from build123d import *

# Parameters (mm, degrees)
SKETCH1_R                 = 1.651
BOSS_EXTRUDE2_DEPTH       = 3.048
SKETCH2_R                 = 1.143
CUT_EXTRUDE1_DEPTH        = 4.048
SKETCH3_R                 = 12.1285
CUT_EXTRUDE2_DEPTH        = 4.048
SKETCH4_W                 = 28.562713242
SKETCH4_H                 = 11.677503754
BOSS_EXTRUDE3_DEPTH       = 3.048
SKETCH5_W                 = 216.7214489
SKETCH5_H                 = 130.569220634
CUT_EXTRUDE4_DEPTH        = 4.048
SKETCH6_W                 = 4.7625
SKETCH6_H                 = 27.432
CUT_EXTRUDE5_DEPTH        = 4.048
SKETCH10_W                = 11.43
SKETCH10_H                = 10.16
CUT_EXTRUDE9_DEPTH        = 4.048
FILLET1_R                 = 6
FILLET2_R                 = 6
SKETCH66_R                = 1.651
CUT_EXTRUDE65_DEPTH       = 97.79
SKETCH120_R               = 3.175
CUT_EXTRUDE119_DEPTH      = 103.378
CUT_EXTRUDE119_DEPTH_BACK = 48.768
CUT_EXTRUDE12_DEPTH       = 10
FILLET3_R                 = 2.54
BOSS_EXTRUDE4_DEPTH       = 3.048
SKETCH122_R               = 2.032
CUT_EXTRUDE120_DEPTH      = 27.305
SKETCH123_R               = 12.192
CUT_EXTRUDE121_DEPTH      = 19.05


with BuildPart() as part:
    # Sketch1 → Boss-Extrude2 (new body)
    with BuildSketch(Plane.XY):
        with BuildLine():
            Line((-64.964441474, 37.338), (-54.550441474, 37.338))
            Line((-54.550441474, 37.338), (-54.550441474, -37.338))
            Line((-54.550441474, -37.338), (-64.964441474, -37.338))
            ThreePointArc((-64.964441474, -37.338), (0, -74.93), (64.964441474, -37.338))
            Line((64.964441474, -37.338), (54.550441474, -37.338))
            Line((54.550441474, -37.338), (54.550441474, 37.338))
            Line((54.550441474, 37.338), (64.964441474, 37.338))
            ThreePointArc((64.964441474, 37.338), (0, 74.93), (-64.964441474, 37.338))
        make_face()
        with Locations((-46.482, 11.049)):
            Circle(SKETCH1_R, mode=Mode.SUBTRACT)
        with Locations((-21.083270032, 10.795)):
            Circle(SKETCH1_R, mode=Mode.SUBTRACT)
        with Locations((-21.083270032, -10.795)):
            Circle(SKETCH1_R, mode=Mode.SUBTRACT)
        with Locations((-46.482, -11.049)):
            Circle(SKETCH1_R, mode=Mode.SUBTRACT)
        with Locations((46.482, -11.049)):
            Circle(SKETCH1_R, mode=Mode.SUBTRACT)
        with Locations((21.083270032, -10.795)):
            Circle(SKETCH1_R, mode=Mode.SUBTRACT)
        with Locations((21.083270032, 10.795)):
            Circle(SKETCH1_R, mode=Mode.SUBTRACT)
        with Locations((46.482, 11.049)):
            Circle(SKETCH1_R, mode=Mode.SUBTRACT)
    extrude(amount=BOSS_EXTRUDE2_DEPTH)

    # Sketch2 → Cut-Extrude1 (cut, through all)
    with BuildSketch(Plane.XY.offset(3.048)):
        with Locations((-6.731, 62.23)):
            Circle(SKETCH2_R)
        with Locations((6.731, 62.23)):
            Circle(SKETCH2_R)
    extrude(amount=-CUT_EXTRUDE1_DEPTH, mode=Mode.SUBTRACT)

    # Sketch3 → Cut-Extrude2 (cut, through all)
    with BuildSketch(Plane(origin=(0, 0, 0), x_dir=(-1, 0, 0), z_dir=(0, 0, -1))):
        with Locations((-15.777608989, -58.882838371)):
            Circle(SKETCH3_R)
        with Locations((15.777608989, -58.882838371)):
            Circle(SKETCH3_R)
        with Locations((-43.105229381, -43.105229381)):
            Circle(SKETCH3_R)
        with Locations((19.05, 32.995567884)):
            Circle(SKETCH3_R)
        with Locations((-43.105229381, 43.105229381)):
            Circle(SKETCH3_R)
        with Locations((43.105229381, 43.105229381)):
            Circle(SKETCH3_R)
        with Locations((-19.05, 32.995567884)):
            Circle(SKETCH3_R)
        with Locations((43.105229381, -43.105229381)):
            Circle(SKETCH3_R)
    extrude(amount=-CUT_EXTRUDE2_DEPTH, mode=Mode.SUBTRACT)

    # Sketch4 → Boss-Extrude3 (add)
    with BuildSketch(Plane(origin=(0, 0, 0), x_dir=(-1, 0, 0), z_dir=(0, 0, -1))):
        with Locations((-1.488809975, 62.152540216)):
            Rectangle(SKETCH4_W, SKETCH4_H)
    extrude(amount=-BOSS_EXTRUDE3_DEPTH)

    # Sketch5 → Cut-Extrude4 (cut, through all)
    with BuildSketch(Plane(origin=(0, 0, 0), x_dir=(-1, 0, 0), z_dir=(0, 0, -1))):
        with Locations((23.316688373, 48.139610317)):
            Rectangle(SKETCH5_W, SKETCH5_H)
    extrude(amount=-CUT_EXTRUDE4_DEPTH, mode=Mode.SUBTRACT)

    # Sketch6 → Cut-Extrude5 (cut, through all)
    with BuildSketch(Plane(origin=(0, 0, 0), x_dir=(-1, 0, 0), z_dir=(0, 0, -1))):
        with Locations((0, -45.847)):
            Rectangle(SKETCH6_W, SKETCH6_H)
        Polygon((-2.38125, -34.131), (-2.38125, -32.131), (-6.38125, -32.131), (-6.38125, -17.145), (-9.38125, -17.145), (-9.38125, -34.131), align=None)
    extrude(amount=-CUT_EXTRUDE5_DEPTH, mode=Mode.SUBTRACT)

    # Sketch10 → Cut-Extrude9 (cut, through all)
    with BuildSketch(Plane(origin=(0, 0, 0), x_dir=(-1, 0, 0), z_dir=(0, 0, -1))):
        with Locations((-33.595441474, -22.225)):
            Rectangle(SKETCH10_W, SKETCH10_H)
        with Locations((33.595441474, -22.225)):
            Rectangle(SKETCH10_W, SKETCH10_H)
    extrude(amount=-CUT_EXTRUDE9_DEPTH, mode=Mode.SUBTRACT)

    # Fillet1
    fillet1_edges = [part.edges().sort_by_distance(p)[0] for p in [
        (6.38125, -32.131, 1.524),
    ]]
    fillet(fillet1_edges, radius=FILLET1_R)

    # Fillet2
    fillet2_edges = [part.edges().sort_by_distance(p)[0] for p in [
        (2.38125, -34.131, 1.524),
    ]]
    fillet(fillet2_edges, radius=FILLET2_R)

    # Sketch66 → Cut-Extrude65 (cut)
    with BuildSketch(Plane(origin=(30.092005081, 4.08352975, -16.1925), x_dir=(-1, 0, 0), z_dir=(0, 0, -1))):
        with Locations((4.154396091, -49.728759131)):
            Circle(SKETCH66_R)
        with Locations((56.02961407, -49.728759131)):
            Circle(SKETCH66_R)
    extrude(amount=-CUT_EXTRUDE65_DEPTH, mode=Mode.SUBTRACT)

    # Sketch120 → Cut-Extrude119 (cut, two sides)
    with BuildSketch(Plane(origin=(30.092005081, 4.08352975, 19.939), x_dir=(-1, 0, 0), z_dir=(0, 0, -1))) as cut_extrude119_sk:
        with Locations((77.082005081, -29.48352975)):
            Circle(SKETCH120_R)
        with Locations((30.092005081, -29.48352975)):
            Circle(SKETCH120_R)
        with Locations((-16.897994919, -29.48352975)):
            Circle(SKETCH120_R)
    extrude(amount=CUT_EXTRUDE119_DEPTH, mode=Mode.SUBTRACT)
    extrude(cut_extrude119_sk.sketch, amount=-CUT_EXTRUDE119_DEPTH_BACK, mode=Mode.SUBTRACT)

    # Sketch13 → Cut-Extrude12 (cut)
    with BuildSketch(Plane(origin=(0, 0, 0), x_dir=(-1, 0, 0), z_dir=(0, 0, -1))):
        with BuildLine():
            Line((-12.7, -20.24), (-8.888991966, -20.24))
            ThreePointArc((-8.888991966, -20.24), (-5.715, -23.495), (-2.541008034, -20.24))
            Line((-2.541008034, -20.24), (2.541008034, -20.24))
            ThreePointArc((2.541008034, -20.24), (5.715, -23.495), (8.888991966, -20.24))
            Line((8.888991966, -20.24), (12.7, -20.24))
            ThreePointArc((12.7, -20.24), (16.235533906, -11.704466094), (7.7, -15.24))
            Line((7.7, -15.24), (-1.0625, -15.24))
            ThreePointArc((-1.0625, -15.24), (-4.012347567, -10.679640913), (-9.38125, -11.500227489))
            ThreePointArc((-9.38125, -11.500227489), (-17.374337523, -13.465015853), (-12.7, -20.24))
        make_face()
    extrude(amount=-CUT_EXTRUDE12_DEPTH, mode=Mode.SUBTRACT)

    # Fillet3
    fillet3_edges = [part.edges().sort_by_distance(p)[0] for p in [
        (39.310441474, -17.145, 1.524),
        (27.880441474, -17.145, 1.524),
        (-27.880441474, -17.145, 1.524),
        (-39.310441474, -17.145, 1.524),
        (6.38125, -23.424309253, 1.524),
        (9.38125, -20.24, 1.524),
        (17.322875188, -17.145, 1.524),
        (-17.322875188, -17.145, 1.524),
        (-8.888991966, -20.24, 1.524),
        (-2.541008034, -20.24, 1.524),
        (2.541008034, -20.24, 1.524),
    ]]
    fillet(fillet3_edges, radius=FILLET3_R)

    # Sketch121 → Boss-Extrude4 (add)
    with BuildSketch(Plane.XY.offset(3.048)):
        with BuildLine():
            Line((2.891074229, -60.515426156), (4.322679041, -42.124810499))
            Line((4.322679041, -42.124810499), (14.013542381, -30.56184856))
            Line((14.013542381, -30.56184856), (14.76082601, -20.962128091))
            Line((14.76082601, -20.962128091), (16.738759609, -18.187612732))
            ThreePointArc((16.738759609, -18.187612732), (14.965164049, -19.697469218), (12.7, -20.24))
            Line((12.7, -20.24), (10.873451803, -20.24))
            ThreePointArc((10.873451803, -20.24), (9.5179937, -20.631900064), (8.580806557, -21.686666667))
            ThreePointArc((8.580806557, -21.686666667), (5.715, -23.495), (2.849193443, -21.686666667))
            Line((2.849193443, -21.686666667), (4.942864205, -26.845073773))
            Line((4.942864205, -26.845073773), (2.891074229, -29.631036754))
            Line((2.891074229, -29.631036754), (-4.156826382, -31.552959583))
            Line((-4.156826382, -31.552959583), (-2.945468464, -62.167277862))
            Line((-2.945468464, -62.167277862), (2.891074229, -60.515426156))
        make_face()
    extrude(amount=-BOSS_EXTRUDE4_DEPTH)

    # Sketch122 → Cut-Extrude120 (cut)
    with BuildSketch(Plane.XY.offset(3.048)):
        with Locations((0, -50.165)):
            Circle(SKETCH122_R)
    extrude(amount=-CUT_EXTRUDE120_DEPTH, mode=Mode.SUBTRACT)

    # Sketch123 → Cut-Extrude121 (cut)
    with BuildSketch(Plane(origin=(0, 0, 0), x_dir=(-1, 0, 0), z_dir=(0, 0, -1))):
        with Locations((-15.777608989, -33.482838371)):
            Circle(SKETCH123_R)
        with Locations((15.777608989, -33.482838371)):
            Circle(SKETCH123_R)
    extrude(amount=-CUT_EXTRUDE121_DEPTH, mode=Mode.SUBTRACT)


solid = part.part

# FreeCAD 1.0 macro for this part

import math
import FreeCAD as App
import Part
import Sketcher
from FreeCAD import Vector
Q = App.Units.Quantity


def edges_at(feature, points):
    """Names of the edges that pass closest to the given points."""
    edges = feature.Shape.Edges
    near = lambda p: min(range(len(edges)), key=lambda i: edges[i].distToShape(Part.Vertex(*p))[0])
    return sorted({f"Edge{near(p) + 1}" for p in points})


def add_polygon(sketch, points):
    """Adds a closed chain of lines whose ends are joined by coincident constraints."""
    first, n = sketch.GeometryCount, len(points)
    for a, b in zip(points, points[1:] + points[:1]):
        sketch.addGeometry(Part.LineSegment(App.Vector(*a, 0), App.Vector(*b, 0)), False)
    for i in range(n):
        sketch.addConstraint(Sketcher.Constraint("Coincident", first + i, 2, first + (i + 1) % n, 1))

doc = App.newDocument("Part")
body = doc.addObject("PartDesign::Body", "Body")

# Sketch on XY plane
sketch1 = body.newObject("Sketcher::SketchObject", "Sketch")
sketch1.AttachmentSupport = (doc.getObject("XY_Plane"), [""])
sketch1.MapMode = "FlatFace"
sketch1.addGeometry([
    Part.LineSegment(Vector(-64.964441, 37.338, 0), Vector(-54.550441, 37.338, 0)),  # 0
    Part.LineSegment(Vector(-54.550441, 37.338, 0), Vector(-54.550441, -37.338, 0)),  # 1
    Part.LineSegment(Vector(-54.550441, -37.338, 0), Vector(-64.964441, -37.338, 0)),  # 2
    Part.ArcOfCircle(Part.Circle(Vector(0, 0, 0), Vector(0, 0, 1), 74.93), math.radians(-150.112071), math.radians(-29.887929)),  # 3
    Part.LineSegment(Vector(64.964441, -37.338, 0), Vector(54.550441, -37.338, 0)),  # 4
    Part.LineSegment(Vector(54.550441, -37.338, 0), Vector(54.550441, 37.338, 0)),  # 5
    Part.LineSegment(Vector(54.550441, 37.338, 0), Vector(64.964441, 37.338, 0)),  # 6
    Part.ArcOfCircle(Part.Circle(Vector(0, 0, 0), Vector(0, 0, 1), 74.93), math.radians(29.887929), math.radians(150.112071)),  # 7
    Part.Circle(Vector(-46.482, -11.049, 0), Vector(0, 0, 1), 1.651),  # 8
    Part.Circle(Vector(-21.08327, -10.795, 0), Vector(0, 0, 1), 1.651),  # 9
    Part.Circle(Vector(21.08327, -10.795, 0), Vector(0, 0, 1), 1.651),  # 10
    Part.Circle(Vector(46.482, -11.049, 0), Vector(0, 0, 1), 1.651),  # 11
    Part.Circle(Vector(-46.482, 11.049, 0), Vector(0, 0, 1), 1.651),  # 12
    Part.Circle(Vector(-21.08327, 10.795, 0), Vector(0, 0, 1), 1.651),  # 13
    Part.Circle(Vector(21.08327, 10.795, 0), Vector(0, 0, 1), 1.651),  # 14
    Part.Circle(Vector(46.482, 11.049, 0), Vector(0, 0, 1), 1.651),  # 15
], False)
sketch1.addConstraint([
    Sketcher.Constraint("Coincident", 0, 2, 1, 1),
    Sketcher.Constraint("Coincident", 1, 2, 2, 1),
    Sketcher.Constraint("Coincident", 2, 2, 3, 1),
    Sketcher.Constraint("Coincident", 3, 2, 4, 1),
    Sketcher.Constraint("Coincident", 4, 2, 5, 1),
    Sketcher.Constraint("Coincident", 5, 2, 6, 1),
    Sketcher.Constraint("Coincident", 6, 2, 7, 1),
    Sketcher.Constraint("Coincident", 7, 2, 0, 1),
    Sketcher.Constraint("Horizontal", 0),
    Sketcher.Constraint("Vertical", 1),
    Sketcher.Constraint("Horizontal", 2),
    Sketcher.Constraint("Horizontal", 4),
    Sketcher.Constraint("Vertical", 5),
    Sketcher.Constraint("Horizontal", 6),
    Sketcher.Constraint("Coincident", 3, 3, -1, 1),
    Sketcher.Constraint("Coincident", 7, 3, -1, 1),
    Sketcher.Constraint("Equal", 3, 7),
    Sketcher.Constraint("Equal", 8, 9),
    Sketcher.Constraint("Equal", 9, 10),
    Sketcher.Constraint("Equal", 10, 11),
    Sketcher.Constraint("Equal", 11, 12),
    Sketcher.Constraint("Equal", 12, 13),
    Sketcher.Constraint("Equal", 13, 14),
    Sketcher.Constraint("Equal", 14, 15),
    Sketcher.Constraint("Symmetric", 11, 3, 12, 3, -1, 1),
    Sketcher.Constraint("Symmetric", 10, 3, 13, 3, -1, 1),
    Sketcher.Constraint("Symmetric", 9, 3, 14, 3, -1, 1),
    Sketcher.Constraint("Symmetric", 8, 3, 15, 3, -1, 1),
    Sketcher.Constraint("Symmetric", 0, 2, 4, 2, -1, 1),
    Sketcher.Constraint("Symmetric", 9, 3, 10, 3, -2),
    Sketcher.Constraint("Symmetric", 8, 3, 11, 3, -2),
    Sketcher.Constraint("Horizontal", 2, 2, 3, 2),
    Sketcher.Constraint("Horizontal", 0, 2, 5, 2),
    Sketcher.Constraint("Diameter", 8, Q("0.13 in")),
    Sketcher.Constraint("Radius", 3, Q("2.95 in")),
    Sketcher.Constraint("DistanceX", 0, 1, 0, 2, Q("0.41 in")),
    Sketcher.Constraint("DistanceY", 1, 2, 1, 1, Q("2.94 in")),
    Sketcher.Constraint("DistanceX", 8, 3, -1, 1, Q("1.83 in")),
    Sketcher.Constraint("DistanceY", 8, 3, 9, 3, Q("0.01 in")),
    Sketcher.Constraint("DistanceY", 8, 3, 12, 3, Q("0.87 in")),
    Sketcher.Constraint("DistanceX", 9, 3, 10, 3, Q("1.6601 in")),
])
pad1 = body.newObject("PartDesign::Pad", "Pad")
pad1.Profile = sketch1
pad1.Length = Q("0.12 in")

# Sketch on XY plane
sketch2 = body.newObject("Sketcher::SketchObject", "Sketch001")
sketch2.AttachmentSupport = (doc.getObject("XY_Plane"), [""])
sketch2.MapMode = "FlatFace"
sketch2.AttachmentOffset = App.Placement(Vector(0, 0, 0.12 * 25.4), App.Rotation())
sketch2.addGeometry([
    Part.Circle(Vector(-6.731, 62.23, 0), Vector(0, 0, 1), 1.143),
    Part.Circle(Vector(6.731, 62.23, 0), Vector(0, 0, 1), 1.143),
], False)
sketch2.addConstraint([
    Sketcher.Constraint("Equal", 0, 1),
    Sketcher.Constraint("Symmetric", 0, 3, 1, 3, -2),
    Sketcher.Constraint("Diameter", 0, Q("0.09 in")),
    Sketcher.Constraint("DistanceY", -1, 1, 0, 3, Q("2.45 in")),
    Sketcher.Constraint("DistanceX", 0, 3, 1, 3, Q("0.53 in")),
])
pocket1 = body.newObject("PartDesign::Pocket", "Pocket")
pocket1.Profile = sketch2
pocket1.Type = "ThroughAll"

# Sketch on XY plane
sketch3 = body.newObject("Sketcher::SketchObject", "Sketch002")
sketch3.AttachmentSupport = (doc.getObject("XY_Plane"), [""])
sketch3.MapMode = "FlatFace"
sketch3.addGeometry([
    Part.Circle(Vector(15.777609, -58.882838, 0), Vector(0, 0, 1), 12.1285),  # 0
    Part.Circle(Vector(-15.777609, -58.882838, 0), Vector(0, 0, 1), 12.1285),  # 1
    Part.Circle(Vector(43.105229, -43.105229, 0), Vector(0, 0, 1), 12.1285),  # 2
    Part.Circle(Vector(-19.05, 32.995568, 0), Vector(0, 0, 1), 12.1285),  # 3
    Part.Circle(Vector(43.105229, 43.105229, 0), Vector(0, 0, 1), 12.1285),  # 4
    Part.Circle(Vector(-43.105229, 43.105229, 0), Vector(0, 0, 1), 12.1285),  # 5
    Part.Circle(Vector(19.05, 32.995568, 0), Vector(0, 0, 1), 12.1285),  # 6
    Part.Circle(Vector(-43.105229, -43.105229, 0), Vector(0, 0, 1), 12.1285),  # 7
], False)
sketch3.addConstraint([
    Sketcher.Constraint("Equal", 0, 1),
    Sketcher.Constraint("Equal", 1, 2),
    Sketcher.Constraint("Equal", 2, 3),
    Sketcher.Constraint("Equal", 3, 4),
    Sketcher.Constraint("Equal", 4, 5),
    Sketcher.Constraint("Equal", 5, 6),
    Sketcher.Constraint("Equal", 6, 7),
    Sketcher.Constraint("Symmetric", 2, 3, 5, 3, -1, 1),
    Sketcher.Constraint("Symmetric", 4, 3, 7, 3, -1, 1),
    Sketcher.Constraint("Symmetric", 0, 3, 1, 3, -2),
    Sketcher.Constraint("Symmetric", 4, 3, 5, 3, -2),
    Sketcher.Constraint("Symmetric", 3, 3, 6, 3, -2),
    Sketcher.Constraint("Diameter", 0, Q("0.955 in")),
    Sketcher.Constraint("DistanceX", 3, 3, 6, 3, Q("1.5 in")),
    Sketcher.Constraint("DistanceX", -1, 1, 0, 3, 15.777609),
    Sketcher.Constraint("DistanceY", 0, 3, -1, 1, 58.882838),
    Sketcher.Constraint("DistanceX", -1, 1, 2, 3, 43.105229),
    Sketcher.Constraint("DistanceY", 2, 3, -1, 1, 43.105229),
    Sketcher.Constraint("DistanceY", 3, 3, 4, 3, 10.109661),
])
pocket2 = body.newObject("PartDesign::Pocket", "Pocket001")
pocket2.Profile = sketch3
pocket2.Type = "ThroughAll"
pocket2.Reversed = True

# Sketch on XY plane
sketch4 = body.newObject("Sketcher::SketchObject", "Sketch003")
sketch4.AttachmentSupport = (doc.getObject("XY_Plane"), [""])
sketch4.MapMode = "FlatFace"
add_polygon(sketch4, [(15.770167, 67.991292), (15.770167, 56.313788), (-12.792547, 56.313788), (-12.792547, 67.991292)])  # lines 0-3
sketch4.addConstraint([
    Sketcher.Constraint("Vertical", 0),
    Sketcher.Constraint("Horizontal", 1),
    Sketcher.Constraint("Vertical", 2),
    Sketcher.Constraint("Horizontal", 3),
    Sketcher.Constraint("DistanceX", 1, 2, 1, 1, 28.562713),
    Sketcher.Constraint("DistanceY", 0, 2, 0, 1, 11.677504),
    Sketcher.Constraint("DistanceY", -1, 1, 0, 2, 56.313788),
    Sketcher.Constraint("DistanceX", -1, 1, 0, 2, 15.770167),
])
pad2 = body.newObject("PartDesign::Pad", "Pad001")
pad2.Profile = sketch4
pad2.Length = Q("0.12 in")

# Sketch on XY plane
sketch5 = body.newObject("Sketcher::SketchObject", "Sketch004")
sketch5.AttachmentSupport = (doc.getObject("XY_Plane"), [""])
sketch5.MapMode = "FlatFace"
add_polygon(sketch5, [(85.044036, 113.424221), (85.044036, -17.145), (-131.677413, -17.145), (-131.677413, 113.424221)])  # lines 0-3
sketch5.addConstraint([
    Sketcher.Constraint("Vertical", 0),
    Sketcher.Constraint("Horizontal", 1),
    Sketcher.Constraint("Vertical", 2),
    Sketcher.Constraint("Horizontal", 3),
    Sketcher.Constraint("DistanceY", 0, 2, -1, 1, Q("0.675 in")),
    Sketcher.Constraint("DistanceX", 1, 2, 1, 1, 216.721449),
    Sketcher.Constraint("DistanceY", 0, 2, 0, 1, 130.569221),
    Sketcher.Constraint("DistanceX", -1, 1, 0, 2, 85.044036),
])
pocket3 = body.newObject("PartDesign::Pocket", "Pocket002")
pocket3.Profile = sketch5
pocket3.Type = "ThroughAll"
pocket3.Reversed = True

# Sketch on XY plane
sketch6 = body.newObject("Sketcher::SketchObject", "Sketch005")
sketch6.AttachmentSupport = (doc.getObject("XY_Plane"), [""])
sketch6.MapMode = "FlatFace"
add_polygon(sketch6, [(2.38125, -34.131), (2.38125, -59.563), (-2.38125, -59.563), (-2.38125, -32.131), (6.38125, -32.131), (6.38125, -17.145), (9.38125, -17.145), (9.38125, -34.131)])  # lines 0-7
sketch6.addConstraint([
    Sketcher.Constraint("Vertical", 0),
    Sketcher.Constraint("Horizontal", 1),
    Sketcher.Constraint("Vertical", 2),
    Sketcher.Constraint("Horizontal", 3),
    Sketcher.Constraint("Vertical", 4),
    Sketcher.Constraint("Horizontal", 5),
    Sketcher.Constraint("Vertical", 6),
    Sketcher.Constraint("Horizontal", 7),
    Sketcher.Constraint("DistanceY", 2, 1, 2, 2, Q("1.08 in")),
    Sketcher.Constraint("DistanceY", 4, 1, 4, 2, Q("0.59 in")),
    Sketcher.Constraint("DistanceX", 1, 2, 1, 1, Q("0.1875 in")),
    Sketcher.Constraint("DistanceX", -1, 1, 0, 2, Q("0.09375 in")),
    Sketcher.Constraint("DistanceY", 0, 2, -1, 1, Q("2.345 in")),
    Sketcher.Constraint("DistanceX", 3, 1, 3, 2, 8.7625),
    Sketcher.Constraint("DistanceX", 5, 1, 5, 2, 3.0),
    Sketcher.Constraint("DistanceY", 0, 2, 0, 1, 25.432),
])
pocket4 = body.newObject("PartDesign::Pocket", "Pocket003")
pocket4.Profile = sketch6
pocket4.Type = "ThroughAll"
pocket4.Reversed = True

# Sketch on XY plane
sketch7 = body.newObject("Sketcher::SketchObject", "Sketch006")
sketch7.AttachmentSupport = (doc.getObject("XY_Plane"), [""])
sketch7.MapMode = "FlatFace"
add_polygon(sketch7, [(39.310441, -17.145), (39.310441, -27.305), (27.880441, -27.305), (27.880441, -17.145)])  # lines 0-3
add_polygon(sketch7, [(-27.880441, -17.145), (-27.880441, -27.305), (-39.310441, -27.305), (-39.310441, -17.145)])  # lines 4-7
sketch7.addConstraint([
    Sketcher.Constraint("Vertical", 0),
    Sketcher.Constraint("Horizontal", 1),
    Sketcher.Constraint("Vertical", 2),
    Sketcher.Constraint("Horizontal", 3),
    Sketcher.Constraint("Vertical", 4),
    Sketcher.Constraint("Horizontal", 5),
    Sketcher.Constraint("Vertical", 6),
    Sketcher.Constraint("Horizontal", 7),
    Sketcher.Constraint("Symmetric", 1, 2, 4, 2, -2),
    Sketcher.Constraint("Symmetric", 3, 2, 6, 2, -2),
    Sketcher.Constraint("DistanceY", 0, 2, 0, 1, Q("0.4 in")),
    Sketcher.Constraint("DistanceX", 1, 2, 1, 1, Q("0.45 in")),
    Sketcher.Constraint("DistanceY", 0, 2, -1, 1, Q("1.075 in")),
    Sketcher.Constraint("DistanceX", -1, 1, 0, 2, 39.310441),
])
pocket5 = body.newObject("PartDesign::Pocket", "Pocket004")
pocket5.Profile = sketch7
pocket5.Type = "ThroughAll"
pocket5.Reversed = True
doc.recompute()

fillet = body.newObject("PartDesign::Fillet", "Fillet")
fillet.Base = (pocket5, edges_at(pocket5, [(6.381, -32.131, 1.524)]))
fillet.Radius = 6
doc.recompute()

fillet2 = body.newObject("PartDesign::Fillet", "Fillet001")
fillet2.Base = (fillet, edges_at(fillet, [(2.381, -34.131, 1.524)]))
fillet2.Radius = 6

# Sketch on XY plane
sketch8 = body.newObject("Sketcher::SketchObject", "Sketch007")
sketch8.AttachmentSupport = (doc.getObject("XY_Plane"), [""])
sketch8.MapMode = "FlatFace"
sketch8.AttachmentOffset = App.Placement(Vector(0, 0, -0.6375 * 25.4), App.Rotation())
sketch8.addGeometry([
    Part.Circle(Vector(25.937609, -45.645229, 0), Vector(0, 0, 1), 1.651),
    Part.Circle(Vector(-25.937609, -45.645229, 0), Vector(0, 0, 1), 1.651),
], False)
sketch8.addConstraint([
    Sketcher.Constraint("Equal", 0, 1),
    Sketcher.Constraint("Symmetric", 0, 3, 1, 3, -2),
    Sketcher.Constraint("Diameter", 0, Q("0.13 in")),
    Sketcher.Constraint("DistanceX", -1, 1, 0, 3, 25.937609),
    Sketcher.Constraint("DistanceY", 0, 3, -1, 1, 45.645229),
])
pocket6 = body.newObject("PartDesign::Pocket", "Pocket005")
pocket6.Profile = sketch8
pocket6.Length = Q("3.85 in")
pocket6.Reversed = True

# Sketch on XY plane
sketch9 = body.newObject("Sketcher::SketchObject", "Sketch008")
sketch9.AttachmentSupport = (doc.getObject("XY_Plane"), [""])
sketch9.MapMode = "FlatFace"
sketch9.AttachmentOffset = App.Placement(Vector(0, 0, 0.785 * 25.4), App.Rotation())
sketch9.addGeometry([
    Part.Circle(Vector(-46.99, -25.4, 0), Vector(0, 0, 1), 3.175),
    Part.Circle(Vector(0, -25.4, 0), Vector(0, 0, 1), 3.175),
    Part.Circle(Vector(46.99, -25.4, 0), Vector(0, 0, 1), 3.175),
], False)
sketch9.addConstraint([
    Sketcher.Constraint("Equal", 0, 1),
    Sketcher.Constraint("Equal", 1, 2),
    Sketcher.Constraint("Symmetric", 0, 3, 2, 3, -2),
    Sketcher.Constraint("PointOnObject", 1, 3, -2),
    Sketcher.Constraint("Horizontal", 0, 3, 1, 3),
    Sketcher.Constraint("Diameter", 0, Q("0.25 in")),
    Sketcher.Constraint("DistanceY", 0, 3, -1, 1, Q("1 in")),
    Sketcher.Constraint("DistanceX", 0, 3, 2, 3, Q("3.7 in")),
])
pocket7 = body.newObject("PartDesign::Pocket", "Pocket006")
pocket7.Profile = sketch9
pocket7.Type = "ThroughAll"
pocket7.Midplane = True

# Sketch on XY plane
sketch10 = body.newObject("Sketcher::SketchObject", "Sketch009")
sketch10.AttachmentSupport = (doc.getObject("XY_Plane"), [""])
sketch10.MapMode = "FlatFace"
sketch10.addGeometry([
    Part.LineSegment(Vector(12.7, -20.24, 0), Vector(8.888992, -20.24, 0)),  # 0
    Part.ArcOfCircle(Part.Circle(Vector(5.715, -20.32, 0), Vector(0, 0, 1), 3.175), math.radians(178.556174), math.radians(361.443826)),  # 1
    Part.LineSegment(Vector(2.541008, -20.24, 0), Vector(-2.541008, -20.24, 0)),  # 2
    Part.ArcOfCircle(Part.Circle(Vector(-5.715, -20.32, 0), Vector(0, 0, 1), 3.175), math.radians(178.556174), math.radians(361.443826)),  # 3
    Part.LineSegment(Vector(-8.888992, -20.24, 0), Vector(-12.7, -20.24, 0)),  # 4
    Part.ArcOfCircle(Part.Circle(Vector(-12.7, -15.24, 0), Vector(0, 0, 1), 5), math.radians(0), math.radians(270)),  # 5
    Part.LineSegment(Vector(-7.7, -15.24, 0), Vector(1.0625, -15.24, 0)),  # 6
    Part.ArcOfCircle(Part.Circle(Vector(6.0625, -15.24, 0), Vector(0, 0, 1), 5), math.radians(48.4135), math.radians(180)),  # 7
    Part.ArcOfCircle(Part.Circle(Vector(12.7, -15.24, 0), Vector(0, 0, 1), 5), math.radians(-90), math.radians(131.5865)),  # 8
], False)
sketch10.addConstraint([
    Sketcher.Constraint("Coincident", 0, 2, 1, 2),
    Sketcher.Constraint("Coincident", 1, 1, 2, 1),
    Sketcher.Constraint("Coincident", 2, 2, 3, 2),
    Sketcher.Constraint("Coincident", 3, 1, 4, 1),
    Sketcher.Constraint("Tangent", 4, 2, 5, 2),
    Sketcher.Constraint("Coincident", 5, 1, 6, 1),
    Sketcher.Constraint("Coincident", 6, 2, 7, 2),
    Sketcher.Constraint("Coincident", 7, 1, 8, 2),
    Sketcher.Constraint("Tangent", 8, 1, 0, 1),
    Sketcher.Constraint("Horizontal", 0),
    Sketcher.Constraint("Horizontal", 2),
    Sketcher.Constraint("Horizontal", 4),
    Sketcher.Constraint("Horizontal", 6),
    Sketcher.Constraint("Equal", 1, 3),
    Sketcher.Constraint("Equal", 5, 7),
    Sketcher.Constraint("Equal", 7, 8),
    Sketcher.Constraint("Symmetric", 1, 3, 3, 3, -2),
    Sketcher.Constraint("Symmetric", 5, 3, 8, 3, -2),
    Sketcher.Constraint("Horizontal", 5, 3, 7, 3),
    Sketcher.Constraint("Horizontal", 0, 2, 1, 1),
    Sketcher.Constraint("Horizontal", 8, 3, 5, 1),
    Sketcher.Constraint("Radius", 1, Q("0.125 in")),
    Sketcher.Constraint("DistanceX", 5, 3, 8, 3, Q("1 in")),
    Sketcher.Constraint("DistanceY", 1, 3, -1, 1, Q("0.8 in")),
    Sketcher.Constraint("DistanceY", 5, 3, -1, 1, Q("0.6 in")),
    Sketcher.Constraint("Radius", 5, 5.0),
    Sketcher.Constraint("DistanceX", 3, 3, 1, 3, Q("0.45 in")),
    Sketcher.Constraint("DistanceX", 6, 1, 6, 2, 8.7625),
])
pocket8 = body.newObject("PartDesign::Pocket", "Pocket007")
pocket8.Profile = sketch10
pocket8.Length = 10
pocket8.Reversed = True
doc.recompute()

fillet3 = body.newObject("PartDesign::Fillet", "Fillet002")
fillet3.Base = (pocket8, edges_at(pocket8, [
    (39.31, -17.145, 1.524),
    (27.88, -17.145, 1.524),
    (-27.88, -17.145, 1.524),
    (-39.31, -17.145, 1.524),
    (6.381, -23.424, 1.524),
    (9.381, -20.24, 1.524),
    (17.323, -17.145, 1.524),
    (-17.323, -17.145, 1.524),
    (-8.889, -20.24, 1.524),
    (-2.541, -20.24, 1.524),
    (2.541, -20.24, 1.524),
]))
fillet3.Radius = Q("0.1 in")

# Sketch on XY plane
sketch11 = body.newObject("Sketcher::SketchObject", "Sketch010")
sketch11.AttachmentSupport = (doc.getObject("XY_Plane"), [""])
sketch11.MapMode = "FlatFace"
sketch11.AttachmentOffset = App.Placement(Vector(0, 0, 0.12 * 25.4), App.Rotation())
sketch11.addGeometry([
    Part.LineSegment(Vector(2.891074, -60.515426, 0), Vector(4.322679, -42.12481, 0)),  # 0
    Part.LineSegment(Vector(4.322679, -42.12481, 0), Vector(14.013542, -30.561849, 0)),  # 1
    Part.LineSegment(Vector(14.013542, -30.561849, 0), Vector(14.760826, -20.962128, 0)),  # 2
    Part.LineSegment(Vector(14.760826, -20.962128, 0), Vector(16.73876, -18.187613, 0)),  # 3
    Part.ArcOfCircle(Part.Circle(Vector(12.7, -15.24, 0), Vector(0, 0, 1), 5), math.radians(-90), math.radians(-36.123134)),  # 4
    Part.LineSegment(Vector(12.7, -20.24, 0), Vector(10.873452, -20.24, 0)),  # 5
    Part.ArcOfCircle(Part.Circle(Vector(10.873452, -22.78, 0), Vector(0, 0, 1), 2.54), math.radians(90), math.radians(154.50412)),  # 6
    Part.ArcOfCircle(Part.Circle(Vector(5.715, -20.32, 0), Vector(0, 0, 1), 3.175), math.radians(-154.50412), math.radians(-25.49588)),  # 7
    Part.LineSegment(Vector(2.849193, -21.686667, 0), Vector(4.942864, -26.845074, 0)),  # 8
    Part.LineSegment(Vector(4.942864, -26.845074, 0), Vector(2.891074, -29.631037, 0)),  # 9
    Part.LineSegment(Vector(2.891074, -29.631037, 0), Vector(-4.156826, -31.55296, 0)),  # 10
    Part.LineSegment(Vector(-4.156826, -31.55296, 0), Vector(-2.945468, -62.167278, 0)),  # 11
    Part.LineSegment(Vector(-2.945468, -62.167278, 0), Vector(2.891074, -60.515426, 0)),  # 12
], False)
sketch11.addConstraint([
    Sketcher.Constraint("Coincident", 0, 2, 1, 1),
    Sketcher.Constraint("Coincident", 1, 2, 2, 1),
    Sketcher.Constraint("Coincident", 2, 2, 3, 1),
    Sketcher.Constraint("Coincident", 3, 2, 4, 2),
    Sketcher.Constraint("Tangent", 4, 1, 5, 1),
    Sketcher.Constraint("Tangent", 5, 2, 6, 1),
    Sketcher.Constraint("Tangent", 6, 2, 7, 2),
    Sketcher.Constraint("Coincident", 7, 1, 8, 1),
    Sketcher.Constraint("Coincident", 8, 2, 9, 1),
    Sketcher.Constraint("Coincident", 9, 2, 10, 1),
    Sketcher.Constraint("Coincident", 10, 2, 11, 1),
    Sketcher.Constraint("Coincident", 11, 2, 12, 1),
    Sketcher.Constraint("Coincident", 12, 2, 0, 1),
    Sketcher.Constraint("Horizontal", 5),
    Sketcher.Constraint("Parallel", 0, 2),
    Sketcher.Constraint("Horizontal", 6, 2, 7, 1),
    Sketcher.Constraint("Vertical", 9, 2, 12, 2),
    Sketcher.Constraint("Radius", 6, Q("0.1 in")),
    Sketcher.Constraint("Radius", 7, Q("0.125 in")),
    Sketcher.Constraint("DistanceX", -1, 1, 4, 3, Q("0.5 in")),
    Sketcher.Constraint("DistanceY", 4, 3, -1, 1, Q("0.6 in")),
    Sketcher.Constraint("DistanceY", 7, 3, -1, 1, Q("0.8 in")),
    Sketcher.Constraint("Radius", 4, 5.0),
    Sketcher.Constraint("DistanceX", -1, 1, 7, 3, Q("0.225 in")),
    Sketcher.Constraint("Distance", 8, 5.567102),
    Sketcher.Constraint("DistanceX", 10, 2, 9, 2, 7.047901),
    Sketcher.Constraint("Distance", 3, 3.407368),
    Sketcher.Constraint("Distance", 10, 7.305251),
    Sketcher.Constraint("DistanceX", -1, 1, 0, 2, 4.322679),
    Sketcher.Constraint("DistanceY", 0, 2, -1, 1, 42.12481),
    Sketcher.Constraint("DistanceY", 1, 2, -1, 1, 30.561849),
    Sketcher.Constraint("DistanceY", 2, 2, -1, 1, 20.962128),
    Sketcher.Constraint("DistanceX", -1, 1, 3, 2, 16.73876),
    Sketcher.Constraint("DistanceY", 10, 2, -1, 1, 31.55296),
    Sketcher.Constraint("DistanceX", 11, 2, -1, 1, 2.945468),
    Sketcher.Constraint("DistanceX", 6, 3, 1, 2, 3.140091),
    Sketcher.Constraint("DistanceX", 7, 1, 8, 2, 2.093671),
    Sketcher.Constraint("DistanceX", 9, 2, 8, 2, 2.05179),
    Sketcher.Constraint("DistanceY", 11, 2, 10, 2, 30.614318),
])
pad3 = body.newObject("PartDesign::Pad", "Pad002")
pad3.Profile = sketch11
pad3.Length = Q("0.12 in")
pad3.Reversed = True

# Sketch on XY plane
sketch12 = body.newObject("Sketcher::SketchObject", "Sketch011")
sketch12.AttachmentSupport = (doc.getObject("XY_Plane"), [""])
sketch12.MapMode = "FlatFace"
sketch12.AttachmentOffset = App.Placement(Vector(0, 0, 0.12 * 25.4), App.Rotation())
sketch12.addGeometry(Part.Circle(Vector(0, -50.165, 0), Vector(0, 0, 1), 2.032), False)
sketch12.addConstraint([
    Sketcher.Constraint("PointOnObject", 0, 3, -2),
    Sketcher.Constraint("Diameter", 0, Q("0.16 in")),
    Sketcher.Constraint("DistanceY", 0, 3, -1, 1, Q("1.975 in")),
])
pocket9 = body.newObject("PartDesign::Pocket", "Pocket008")
pocket9.Profile = sketch12
pocket9.Length = Q("1.075 in")

# Sketch on XY plane
sketch13 = body.newObject("Sketcher::SketchObject", "Sketch012")
sketch13.AttachmentSupport = (doc.getObject("XY_Plane"), [""])
sketch13.MapMode = "FlatFace"
sketch13.addGeometry([
    Part.Circle(Vector(15.777609, -33.482838, 0), Vector(0, 0, 1), 12.192),
    Part.Circle(Vector(-15.777609, -33.482838, 0), Vector(0, 0, 1), 12.192),
], False)
sketch13.addConstraint([
    Sketcher.Constraint("Equal", 0, 1),
    Sketcher.Constraint("Symmetric", 0, 3, 1, 3, -2),
    Sketcher.Constraint("Diameter", 0, Q("0.96 in")),
    Sketcher.Constraint("DistanceX", -1, 1, 0, 3, 15.777609),
    Sketcher.Constraint("DistanceY", 0, 3, -1, 1, 33.482838),
])
pocket10 = body.newObject("PartDesign::Pocket", "Pocket009")
pocket10.Profile = sketch13
pocket10.Length = Q("0.75 in")
pocket10.Reversed = True

doc.recompute()
